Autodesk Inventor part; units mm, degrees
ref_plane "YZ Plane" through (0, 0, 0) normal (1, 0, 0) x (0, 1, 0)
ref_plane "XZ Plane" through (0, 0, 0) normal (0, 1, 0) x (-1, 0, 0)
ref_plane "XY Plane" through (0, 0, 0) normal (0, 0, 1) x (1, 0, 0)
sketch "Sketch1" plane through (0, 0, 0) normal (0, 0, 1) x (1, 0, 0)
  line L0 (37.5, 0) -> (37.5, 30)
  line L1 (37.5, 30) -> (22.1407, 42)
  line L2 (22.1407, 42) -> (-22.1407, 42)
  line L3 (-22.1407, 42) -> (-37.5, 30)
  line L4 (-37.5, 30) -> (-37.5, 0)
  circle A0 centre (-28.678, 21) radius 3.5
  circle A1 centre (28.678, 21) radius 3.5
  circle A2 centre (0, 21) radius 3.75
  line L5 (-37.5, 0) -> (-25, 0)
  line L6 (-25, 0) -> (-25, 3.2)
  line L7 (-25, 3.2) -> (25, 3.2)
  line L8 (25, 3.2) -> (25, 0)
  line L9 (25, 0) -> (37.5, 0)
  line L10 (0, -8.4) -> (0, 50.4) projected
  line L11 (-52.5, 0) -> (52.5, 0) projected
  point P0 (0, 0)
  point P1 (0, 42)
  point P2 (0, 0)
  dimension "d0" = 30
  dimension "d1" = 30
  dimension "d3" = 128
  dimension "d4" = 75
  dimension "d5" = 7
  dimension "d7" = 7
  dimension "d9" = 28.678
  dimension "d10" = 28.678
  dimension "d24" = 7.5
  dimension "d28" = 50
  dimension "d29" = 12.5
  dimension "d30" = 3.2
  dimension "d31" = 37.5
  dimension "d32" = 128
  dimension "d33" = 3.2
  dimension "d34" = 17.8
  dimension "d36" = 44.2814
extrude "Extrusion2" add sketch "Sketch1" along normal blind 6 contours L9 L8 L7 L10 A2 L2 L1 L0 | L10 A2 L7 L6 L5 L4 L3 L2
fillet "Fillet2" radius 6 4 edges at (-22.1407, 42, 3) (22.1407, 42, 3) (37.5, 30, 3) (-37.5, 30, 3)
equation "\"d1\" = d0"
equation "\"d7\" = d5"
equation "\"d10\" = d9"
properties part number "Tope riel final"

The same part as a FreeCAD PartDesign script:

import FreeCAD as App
import Part
import Sketcher
from FreeCAD import Vector
Q = App.Units.Quantity


def edges_at(feature, points):
    """Names of the edges that pass closest to the given points."""
    edges = feature.Shape.Edges
    near = lambda p: min(range(len(edges)), key=lambda i: edges[i].distToShape(Part.Vertex(*p))[0])
    return sorted({f"Edge{near(p) + 1}" for p in points})


def add_polygon(sketch, points):
    """Adds a closed chain of lines whose ends are joined by coincident constraints."""
    first, n = sketch.GeometryCount, len(points)
    for a, b in zip(points, points[1:] + points[:1]):
        sketch.addGeometry(Part.LineSegment(App.Vector(*a, 0), App.Vector(*b, 0)), False)
    for i in range(n):
        sketch.addConstraint(Sketcher.Constraint("Coincident", first + i, 2, first + (i + 1) % n, 1))

doc = App.newDocument("Part")
params = doc.addObject("Spreadsheet::Sheet", "Params")
for row, (alias, value) in enumerate([
    ("sketch1_diameter", "7 mm"),
    ("sketch1_diameter2", "7.5 mm"),
    ("sketch1_width", "50 mm"),
    ("sketch1_height", "30 mm"),
    ("sketch1_width2", "12.5 mm"),
    ("pad1_length", "6 mm"),
    ("fillet_radius", "6 mm"),
], start=1):
    params.set(f"A{row}", alias)
    params.set(f"B{row}", "=" + value)
    params.setAlias(f"B{row}", alias)

body = doc.addObject("PartDesign::Body", "Body")

sketch1 = doc.addObject("Sketcher::SketchObject", "Sketch")
body.addObject(sketch1)
sketch1.AttachmentSupport = (doc.XY_Plane, [""])
sketch1.MapMode = "FlatFace"
add_polygon(sketch1, [(25, 0), (37.5, 0), (37.5, 30), (22.1, 42), (-22.1, 42), (-37.5, 30), (-37.5, 0), (-25, 0), (-25, 3.2), (25, 3.2)])
sketch1.addGeometry(Part.Circle(Vector(0, 21, 0), Vector(0, 0, 1), 3.8), False)
sketch1.addGeometry(Part.Circle(Vector(28.7, 21, 0), Vector(0, 0, 1), 3.5), False)
sketch1.addGeometry(Part.Circle(Vector(-28.7, 21, 0), Vector(0, 0, 1), 3.5), False)
sketch1.addConstraint(Sketcher.Constraint("Horizontal", 0))
sketch1.addConstraint(Sketcher.Constraint("Vertical", 1))
sketch1.addConstraint(Sketcher.Constraint("Horizontal", 3))
sketch1.addConstraint(Sketcher.Constraint("Vertical", 5))
sketch1.addConstraint(Sketcher.Constraint("Horizontal", 6))
sketch1.addConstraint(Sketcher.Constraint("Vertical", 7))
sketch1.addConstraint(Sketcher.Constraint("Horizontal", 8))
sketch1.addConstraint(Sketcher.Constraint("Vertical", 9))
sketch1.addConstraint(Sketcher.Constraint("Equal", 11, 12))
sketch1.addConstraint(Sketcher.Constraint("Symmetric", 0, 2, 5, 2, -1, 1))
sketch1.addConstraint(Sketcher.Constraint("Symmetric", 11, 3, 12, 3, -2))
sketch1.addConstraint(Sketcher.Constraint("Symmetric", 6, 2, 9, 2, -2))
sketch1.addConstraint(Sketcher.Constraint("PointOnObject", 10, 3, -2))
sketch1.addConstraint(Sketcher.Constraint("Horizontal", 10, 3, 11, 3))
sketch1.addConstraint(Sketcher.Constraint("Horizontal", 1, 2, 4, 2))
sketch1.addConstraint(Sketcher.Constraint("Equal", 2, 4))
sketch1.addConstraint(Sketcher.Constraint("Diameter", 11, Q("7 mm")))
sketch1.addConstraint(Sketcher.Constraint("Diameter", 10, Q("7.5 mm")))
sketch1.addConstraint(Sketcher.Constraint("DistanceX", 8, 1, 8, 2, Q("50 mm")))
sketch1.addConstraint(Sketcher.Constraint("DistanceY", 1, 1, 1, 2, Q("30 mm")))
sketch1.addConstraint(Sketcher.Constraint("DistanceX", 0, 1, 0, 2, Q("12.5 mm")))
sketch1.addConstraint(Sketcher.Constraint("DistanceY", 7, 1, 7, 2, Q("3.2 mm")))
sketch1.addConstraint(Sketcher.Constraint("DistanceY", 7, 2, 12, 3, Q("17.8 mm")))
sketch1.addConstraint(Sketcher.Constraint("Angle", 2, Q("142 deg")))
sketch1.addConstraint(Sketcher.Constraint("DistanceX", 3, 2, 3, 1, Q("44.2814 mm")))
sketch1.addConstraint(Sketcher.Constraint("DistanceX", -1, 1, 11, 3, Q("28.678 mm")))
sketch1.setExpression("Constraints[26]", "Params.sketch1_diameter")
sketch1.setExpression("Constraints[27]", "Params.sketch1_diameter2")
sketch1.setExpression("Constraints[28]", "Params.sketch1_width")
sketch1.setExpression("Constraints[29]", "Params.sketch1_height")
sketch1.setExpression("Constraints[30]", "Params.sketch1_width2")
pad1 = doc.addObject("PartDesign::Pad", "Pad")
body.addObject(pad1)
pad1.Profile = sketch1
pad1.setExpression("Length", "Params.pad1_length")
doc.recompute()

fillet = doc.addObject("PartDesign::Fillet", "Fillet")
body.addObject(fillet)
fillet.Base = (pad1, edges_at(pad1, [
    (-22.141, 42, 3),
    (22.141, 42, 3),
    (37.5, 30, 3),
    (-37.5, 30, 3),
]))
fillet.setExpression("Radius", "Params.fillet_radius")

doc.recompute()
